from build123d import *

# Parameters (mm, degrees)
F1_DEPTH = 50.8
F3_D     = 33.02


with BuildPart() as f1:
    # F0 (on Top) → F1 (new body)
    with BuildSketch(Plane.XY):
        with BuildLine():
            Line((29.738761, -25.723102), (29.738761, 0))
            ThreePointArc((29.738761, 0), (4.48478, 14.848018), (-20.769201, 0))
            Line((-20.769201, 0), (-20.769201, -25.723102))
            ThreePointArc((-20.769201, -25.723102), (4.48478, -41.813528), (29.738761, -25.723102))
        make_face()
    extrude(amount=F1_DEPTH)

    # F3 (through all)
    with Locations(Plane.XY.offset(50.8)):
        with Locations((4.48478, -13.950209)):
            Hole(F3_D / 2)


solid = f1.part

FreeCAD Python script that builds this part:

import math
import FreeCAD as App
import Part
import Sketcher

V = App.Vector
Q = App.Units.Quantity

doc = App.newDocument("Part")
params = doc.addObject("Spreadsheet::Sheet", "Params")
for row, (alias, value) in enumerate([
    ("pad1_length", "2 in"),
    ("sketch2_diameter", "1.3 in"),
    ("hole_diameter", "1.3 in"),
], start=1):
    params.set(f"A{row}", alias)
    params.set(f"B{row}", "=" + value)
    params.setAlias(f"B{row}", alias)

body = doc.addObject("PartDesign::Body", "Body")

# Sketch on XY plane
sketch1 = doc.addObject("Sketcher::SketchObject", "Sketch")
body.addObject(sketch1)
sketch1.AttachmentSupport = (doc.XY_Plane, [""])
sketch1.MapMode = "FlatFace"
sketch1.addGeometry([
    Part.LineSegment(V(29.738761, -25.723102, 0), V(29.738761, 0, 0)),
    Part.ArcOfCircle(Part.Circle(V(4.48478, -14.052378, 0), V(0, 0, 1), 28.900396), math.radians(29.093404), math.radians(150.906596)),
    Part.LineSegment(V(-20.769201, 0, 0), V(-20.769201, -25.723102, 0)),
    Part.ArcOfCircle(Part.Circle(V(4.48478, -13.950208, 0), V(0, 0, 1), 27.86332), math.radians(-155.006022), math.radians(-24.993978)),
], False)
sketch1.addConstraint([
    Sketcher.Constraint("Coincident", 0, 2, 1, 1),
    Sketcher.Constraint("Coincident", 1, 2, 2, 1),
    Sketcher.Constraint("Coincident", 2, 2, 3, 1),
    Sketcher.Constraint("Coincident", 3, 2, 0, 1),
    Sketcher.Constraint("Vertical", 0),
    Sketcher.Constraint("Vertical", 2),
    Sketcher.Constraint("PointOnObject", 0, 2, -1),
    Sketcher.Constraint("PointOnObject", 1, 2, -1),
    Sketcher.Constraint("Horizontal", 2, 2, 3, 2),
    Sketcher.Constraint("Radius", 3, Q("27.86332 mm")),
    Sketcher.Constraint("Radius", 1, Q("28.900396 mm")),
    Sketcher.Constraint("DistanceX", 1, 2, -1, 1, Q("20.769201 mm")),
    Sketcher.Constraint("DistanceY", 3, 2, -1, 1, Q("25.723102 mm")),
    Sketcher.Constraint("DistanceX", -1, 1, 1, 3, Q("4.48478 mm")),
])
pad1 = doc.addObject("PartDesign::Pad", "Pad")
body.addObject(pad1)
pad1.Profile = sketch1
pad1.setExpression("Length", "Params.pad1_length")

# Sketch on XY plane
sketch2 = doc.addObject("Sketcher::SketchObject", "Sketch001")
body.addObject(sketch2)
sketch2.AttachmentSupport = (doc.XY_Plane, [""])
sketch2.MapMode = "FlatFace"
sketch2.AttachmentOffset = App.Placement(V(0, 0, 2 * 25.4), App.Rotation())
sketch2.addGeometry(Part.Circle(V(4.48478, -13.950209, 0), V(0, 0, 1), 16.51), False)
sketch2.addConstraint([
    Sketcher.Constraint("Diameter", 0, Q("1.3 in")),
    Sketcher.Constraint("DistanceX", -1, 1, 0, 3, Q("4.48478 mm")),
    Sketcher.Constraint("DistanceY", 0, 3, -1, 1, Q("13.950209 mm")),
])
sketch2.setExpression("Constraints[0]", "Params.sketch2_diameter")
doc.recompute()
hole = doc.addObject("PartDesign::Hole", "Hole")
body.addObject(hole)
hole.Profile = sketch2
hole.ThreadType = "None"
hole.setExpression("Diameter", "Params.hole_diameter")
hole.DepthType = "ThroughAll"

doc.recompute()
